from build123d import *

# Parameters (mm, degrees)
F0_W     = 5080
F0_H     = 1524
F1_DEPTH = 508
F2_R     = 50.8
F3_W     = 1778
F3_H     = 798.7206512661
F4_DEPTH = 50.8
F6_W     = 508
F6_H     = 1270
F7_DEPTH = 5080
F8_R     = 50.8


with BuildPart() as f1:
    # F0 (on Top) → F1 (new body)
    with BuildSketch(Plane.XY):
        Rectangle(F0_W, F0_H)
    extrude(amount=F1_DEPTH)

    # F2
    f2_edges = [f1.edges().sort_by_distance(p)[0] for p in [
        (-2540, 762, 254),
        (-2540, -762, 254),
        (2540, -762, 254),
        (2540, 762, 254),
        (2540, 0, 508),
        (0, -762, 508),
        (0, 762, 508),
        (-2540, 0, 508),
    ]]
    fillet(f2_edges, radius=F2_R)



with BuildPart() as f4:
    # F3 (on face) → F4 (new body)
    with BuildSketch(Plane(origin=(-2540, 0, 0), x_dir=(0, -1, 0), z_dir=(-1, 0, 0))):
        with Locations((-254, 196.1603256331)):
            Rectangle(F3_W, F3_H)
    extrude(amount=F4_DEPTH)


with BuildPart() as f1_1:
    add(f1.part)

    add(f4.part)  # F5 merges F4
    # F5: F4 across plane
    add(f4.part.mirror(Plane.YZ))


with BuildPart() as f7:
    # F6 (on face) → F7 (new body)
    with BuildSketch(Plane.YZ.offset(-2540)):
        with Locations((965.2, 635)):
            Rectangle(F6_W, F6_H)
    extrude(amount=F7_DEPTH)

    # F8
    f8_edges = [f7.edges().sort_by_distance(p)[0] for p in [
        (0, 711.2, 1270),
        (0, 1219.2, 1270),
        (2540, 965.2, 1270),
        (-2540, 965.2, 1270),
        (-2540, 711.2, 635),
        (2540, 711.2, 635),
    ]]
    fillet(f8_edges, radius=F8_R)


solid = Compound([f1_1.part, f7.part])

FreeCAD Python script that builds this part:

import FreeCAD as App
import Part
import Sketcher

V = App.Vector
Q = App.Units.Quantity


def edges_at(feature, points):
    """Names of the edges that pass closest to the given points."""
    edges = feature.Shape.Edges
    near = lambda p: min(range(len(edges)), key=lambda i: edges[i].distToShape(Part.Vertex(*p))[0])
    return sorted({f"Edge{near(p) + 1}" for p in points})


def add_polygon(sketch, points):
    """Adds a closed chain of lines whose ends are joined by coincident constraints."""
    first, n = sketch.GeometryCount, len(points)
    for a, b in zip(points, points[1:] + points[:1]):
        sketch.addGeometry(Part.LineSegment(App.Vector(*a, 0), App.Vector(*b, 0)), False)
    for i in range(n):
        sketch.addConstraint(Sketcher.Constraint("Coincident", first + i, 2, first + (i + 1) % n, 1))

doc = App.newDocument("Part")
body = doc.addObject("PartDesign::Body", "Body")

# Sketch on XY plane
sketch1 = body.newObject("Sketcher::SketchObject", "Sketch")
sketch1.AttachmentSupport = (doc.getObject("XY_Plane"), [""])
sketch1.MapMode = "FlatFace"
add_polygon(sketch1, [(-2540, 762), (-2540, -762), (2540, -762), (2540, 762)])  # lines 0-3
sketch1.addConstraint(Sketcher.Constraint("Vertical", 0))
sketch1.addConstraint(Sketcher.Constraint("Horizontal", 1))
sketch1.addConstraint(Sketcher.Constraint("Vertical", 2))
sketch1.addConstraint(Sketcher.Constraint("Horizontal", 3))
sketch1.addConstraint(Sketcher.Constraint("Symmetric", 0, 2, 2, 2, -1, 1))
sketch1.addConstraint(Sketcher.Constraint("DistanceX", 1, 1, 1, 2, Q("200 in")))
sketch1.addConstraint(Sketcher.Constraint("DistanceY", 0, 2, 0, 1, Q("60 in")))
pad1 = body.newObject("PartDesign::Pad", "Pad")
pad1.Profile = sketch1
pad1.Length = Q("20 in")
doc.recompute()

fillet = body.newObject("PartDesign::Fillet", "Fillet")
fillet.Base = (pad1, edges_at(pad1, [
    (-2540, 762, 254),
    (-2540, -762, 254),
    (2540, -762, 254),
    (2540, 762, 254),
    (2540, 0, 508),
    (0, -762, 508),
    (0, 762, 508),
    (-2540, 0, 508),
]))
fillet.Radius = Q("2 in")
body2 = doc.addObject("PartDesign::Body", "Body001")

# Sketch on YZ plane
sketch2 = body2.newObject("Sketcher::SketchObject", "Sketch001")
sketch2.AttachmentSupport = (doc.getObject("YZ_Plane001"), [""])
sketch2.MapMode = "FlatFace"
sketch2.AttachmentOffset = App.Placement(V(0, 0, -100 * 25.4), App.Rotation())
add_polygon(sketch2, [(1143, 595.520651), (1143, -203.2), (-635, -203.2), (-635, 595.520651)])  # lines 0-3
sketch2.addConstraint(Sketcher.Constraint("Vertical", 0))
sketch2.addConstraint(Sketcher.Constraint("Horizontal", 1))
sketch2.addConstraint(Sketcher.Constraint("Vertical", 2))
sketch2.addConstraint(Sketcher.Constraint("Horizontal", 3))
sketch2.addConstraint(Sketcher.Constraint("DistanceX", 1, 2, 1, 1, Q("70 in")))
sketch2.addConstraint(Sketcher.Constraint("DistanceX", -1, 1, 0, 2, Q("45 in")))
sketch2.addConstraint(Sketcher.Constraint("DistanceY", 0, 2, -1, 1, Q("8 in")))
sketch2.addConstraint(Sketcher.Constraint("DistanceY", 0, 2, 0, 1, 798.720651))
pad2 = body2.newObject("PartDesign::Pad", "Pad001")
pad2.Profile = sketch2
pad2.Length = Q("2 in")
pad2.Reversed = True
doc.recompute()

body3 = doc.addObject("PartDesign::Body", "Body002")
body3.BaseFeature = body2
boolean = body.newObject("PartDesign::Boolean", "Boolean")
boolean.Type = "Fuse"
boolean.addObjects([body3])
doc.recompute()

mirroring = doc.addObject("Part::Mirroring", "Mirroring")
mirroring.Source = body2
mirroring.Base = V(0, 0, 0)
mirroring.Normal = V(1, 0, 0)
body4 = doc.addObject("PartDesign::Body", "Body003")
body4.BaseFeature = mirroring
boolean2 = body.newObject("PartDesign::Boolean", "Boolean001")
boolean2.Type = "Fuse"
boolean2.addObjects([body4])
doc.recompute()
body5 = doc.addObject("PartDesign::Body", "Body004")

# Sketch on YZ plane
sketch3 = body5.newObject("Sketcher::SketchObject", "Sketch002")
sketch3.AttachmentSupport = (doc.getObject("YZ_Plane004"), [""])
sketch3.MapMode = "FlatFace"
sketch3.AttachmentOffset = App.Placement(V(0, 0, -100 * 25.4), App.Rotation())
add_polygon(sketch3, [(711.2, 1270), (711.2, 0), (1219.2, 0), (1219.2, 1270)])  # lines 0-3
sketch3.addConstraint(Sketcher.Constraint("Vertical", 0))
sketch3.addConstraint(Sketcher.Constraint("Horizontal", 1))
sketch3.addConstraint(Sketcher.Constraint("Vertical", 2))
sketch3.addConstraint(Sketcher.Constraint("Horizontal", 3))
sketch3.addConstraint(Sketcher.Constraint("PointOnObject", 0, 2, -1))
sketch3.addConstraint(Sketcher.Constraint("DistanceX", 1, 1, 1, 2, Q("20 in")))
sketch3.addConstraint(Sketcher.Constraint("DistanceY", 0, 2, 0, 1, Q("50 in")))
sketch3.addConstraint(Sketcher.Constraint("DistanceX", -1, 1, 0, 2, Q("28 in")))
pad3 = body5.newObject("PartDesign::Pad", "Pad002")
pad3.Profile = sketch3
pad3.Length = Q("200 in")
doc.recompute()

fillet2 = body5.newObject("PartDesign::Fillet", "Fillet001")
fillet2.Base = (pad3, edges_at(pad3, [
    (0, 711.2, 1270),
    (0, 1219.2, 1270),
    (2540, 965.2, 1270),
    (-2540, 965.2, 1270),
    (-2540, 711.2, 635),
    (2540, 711.2, 635),
]))
fillet2.Radius = Q("2 in")
mirroring.Visibility = False

doc.recompute()
